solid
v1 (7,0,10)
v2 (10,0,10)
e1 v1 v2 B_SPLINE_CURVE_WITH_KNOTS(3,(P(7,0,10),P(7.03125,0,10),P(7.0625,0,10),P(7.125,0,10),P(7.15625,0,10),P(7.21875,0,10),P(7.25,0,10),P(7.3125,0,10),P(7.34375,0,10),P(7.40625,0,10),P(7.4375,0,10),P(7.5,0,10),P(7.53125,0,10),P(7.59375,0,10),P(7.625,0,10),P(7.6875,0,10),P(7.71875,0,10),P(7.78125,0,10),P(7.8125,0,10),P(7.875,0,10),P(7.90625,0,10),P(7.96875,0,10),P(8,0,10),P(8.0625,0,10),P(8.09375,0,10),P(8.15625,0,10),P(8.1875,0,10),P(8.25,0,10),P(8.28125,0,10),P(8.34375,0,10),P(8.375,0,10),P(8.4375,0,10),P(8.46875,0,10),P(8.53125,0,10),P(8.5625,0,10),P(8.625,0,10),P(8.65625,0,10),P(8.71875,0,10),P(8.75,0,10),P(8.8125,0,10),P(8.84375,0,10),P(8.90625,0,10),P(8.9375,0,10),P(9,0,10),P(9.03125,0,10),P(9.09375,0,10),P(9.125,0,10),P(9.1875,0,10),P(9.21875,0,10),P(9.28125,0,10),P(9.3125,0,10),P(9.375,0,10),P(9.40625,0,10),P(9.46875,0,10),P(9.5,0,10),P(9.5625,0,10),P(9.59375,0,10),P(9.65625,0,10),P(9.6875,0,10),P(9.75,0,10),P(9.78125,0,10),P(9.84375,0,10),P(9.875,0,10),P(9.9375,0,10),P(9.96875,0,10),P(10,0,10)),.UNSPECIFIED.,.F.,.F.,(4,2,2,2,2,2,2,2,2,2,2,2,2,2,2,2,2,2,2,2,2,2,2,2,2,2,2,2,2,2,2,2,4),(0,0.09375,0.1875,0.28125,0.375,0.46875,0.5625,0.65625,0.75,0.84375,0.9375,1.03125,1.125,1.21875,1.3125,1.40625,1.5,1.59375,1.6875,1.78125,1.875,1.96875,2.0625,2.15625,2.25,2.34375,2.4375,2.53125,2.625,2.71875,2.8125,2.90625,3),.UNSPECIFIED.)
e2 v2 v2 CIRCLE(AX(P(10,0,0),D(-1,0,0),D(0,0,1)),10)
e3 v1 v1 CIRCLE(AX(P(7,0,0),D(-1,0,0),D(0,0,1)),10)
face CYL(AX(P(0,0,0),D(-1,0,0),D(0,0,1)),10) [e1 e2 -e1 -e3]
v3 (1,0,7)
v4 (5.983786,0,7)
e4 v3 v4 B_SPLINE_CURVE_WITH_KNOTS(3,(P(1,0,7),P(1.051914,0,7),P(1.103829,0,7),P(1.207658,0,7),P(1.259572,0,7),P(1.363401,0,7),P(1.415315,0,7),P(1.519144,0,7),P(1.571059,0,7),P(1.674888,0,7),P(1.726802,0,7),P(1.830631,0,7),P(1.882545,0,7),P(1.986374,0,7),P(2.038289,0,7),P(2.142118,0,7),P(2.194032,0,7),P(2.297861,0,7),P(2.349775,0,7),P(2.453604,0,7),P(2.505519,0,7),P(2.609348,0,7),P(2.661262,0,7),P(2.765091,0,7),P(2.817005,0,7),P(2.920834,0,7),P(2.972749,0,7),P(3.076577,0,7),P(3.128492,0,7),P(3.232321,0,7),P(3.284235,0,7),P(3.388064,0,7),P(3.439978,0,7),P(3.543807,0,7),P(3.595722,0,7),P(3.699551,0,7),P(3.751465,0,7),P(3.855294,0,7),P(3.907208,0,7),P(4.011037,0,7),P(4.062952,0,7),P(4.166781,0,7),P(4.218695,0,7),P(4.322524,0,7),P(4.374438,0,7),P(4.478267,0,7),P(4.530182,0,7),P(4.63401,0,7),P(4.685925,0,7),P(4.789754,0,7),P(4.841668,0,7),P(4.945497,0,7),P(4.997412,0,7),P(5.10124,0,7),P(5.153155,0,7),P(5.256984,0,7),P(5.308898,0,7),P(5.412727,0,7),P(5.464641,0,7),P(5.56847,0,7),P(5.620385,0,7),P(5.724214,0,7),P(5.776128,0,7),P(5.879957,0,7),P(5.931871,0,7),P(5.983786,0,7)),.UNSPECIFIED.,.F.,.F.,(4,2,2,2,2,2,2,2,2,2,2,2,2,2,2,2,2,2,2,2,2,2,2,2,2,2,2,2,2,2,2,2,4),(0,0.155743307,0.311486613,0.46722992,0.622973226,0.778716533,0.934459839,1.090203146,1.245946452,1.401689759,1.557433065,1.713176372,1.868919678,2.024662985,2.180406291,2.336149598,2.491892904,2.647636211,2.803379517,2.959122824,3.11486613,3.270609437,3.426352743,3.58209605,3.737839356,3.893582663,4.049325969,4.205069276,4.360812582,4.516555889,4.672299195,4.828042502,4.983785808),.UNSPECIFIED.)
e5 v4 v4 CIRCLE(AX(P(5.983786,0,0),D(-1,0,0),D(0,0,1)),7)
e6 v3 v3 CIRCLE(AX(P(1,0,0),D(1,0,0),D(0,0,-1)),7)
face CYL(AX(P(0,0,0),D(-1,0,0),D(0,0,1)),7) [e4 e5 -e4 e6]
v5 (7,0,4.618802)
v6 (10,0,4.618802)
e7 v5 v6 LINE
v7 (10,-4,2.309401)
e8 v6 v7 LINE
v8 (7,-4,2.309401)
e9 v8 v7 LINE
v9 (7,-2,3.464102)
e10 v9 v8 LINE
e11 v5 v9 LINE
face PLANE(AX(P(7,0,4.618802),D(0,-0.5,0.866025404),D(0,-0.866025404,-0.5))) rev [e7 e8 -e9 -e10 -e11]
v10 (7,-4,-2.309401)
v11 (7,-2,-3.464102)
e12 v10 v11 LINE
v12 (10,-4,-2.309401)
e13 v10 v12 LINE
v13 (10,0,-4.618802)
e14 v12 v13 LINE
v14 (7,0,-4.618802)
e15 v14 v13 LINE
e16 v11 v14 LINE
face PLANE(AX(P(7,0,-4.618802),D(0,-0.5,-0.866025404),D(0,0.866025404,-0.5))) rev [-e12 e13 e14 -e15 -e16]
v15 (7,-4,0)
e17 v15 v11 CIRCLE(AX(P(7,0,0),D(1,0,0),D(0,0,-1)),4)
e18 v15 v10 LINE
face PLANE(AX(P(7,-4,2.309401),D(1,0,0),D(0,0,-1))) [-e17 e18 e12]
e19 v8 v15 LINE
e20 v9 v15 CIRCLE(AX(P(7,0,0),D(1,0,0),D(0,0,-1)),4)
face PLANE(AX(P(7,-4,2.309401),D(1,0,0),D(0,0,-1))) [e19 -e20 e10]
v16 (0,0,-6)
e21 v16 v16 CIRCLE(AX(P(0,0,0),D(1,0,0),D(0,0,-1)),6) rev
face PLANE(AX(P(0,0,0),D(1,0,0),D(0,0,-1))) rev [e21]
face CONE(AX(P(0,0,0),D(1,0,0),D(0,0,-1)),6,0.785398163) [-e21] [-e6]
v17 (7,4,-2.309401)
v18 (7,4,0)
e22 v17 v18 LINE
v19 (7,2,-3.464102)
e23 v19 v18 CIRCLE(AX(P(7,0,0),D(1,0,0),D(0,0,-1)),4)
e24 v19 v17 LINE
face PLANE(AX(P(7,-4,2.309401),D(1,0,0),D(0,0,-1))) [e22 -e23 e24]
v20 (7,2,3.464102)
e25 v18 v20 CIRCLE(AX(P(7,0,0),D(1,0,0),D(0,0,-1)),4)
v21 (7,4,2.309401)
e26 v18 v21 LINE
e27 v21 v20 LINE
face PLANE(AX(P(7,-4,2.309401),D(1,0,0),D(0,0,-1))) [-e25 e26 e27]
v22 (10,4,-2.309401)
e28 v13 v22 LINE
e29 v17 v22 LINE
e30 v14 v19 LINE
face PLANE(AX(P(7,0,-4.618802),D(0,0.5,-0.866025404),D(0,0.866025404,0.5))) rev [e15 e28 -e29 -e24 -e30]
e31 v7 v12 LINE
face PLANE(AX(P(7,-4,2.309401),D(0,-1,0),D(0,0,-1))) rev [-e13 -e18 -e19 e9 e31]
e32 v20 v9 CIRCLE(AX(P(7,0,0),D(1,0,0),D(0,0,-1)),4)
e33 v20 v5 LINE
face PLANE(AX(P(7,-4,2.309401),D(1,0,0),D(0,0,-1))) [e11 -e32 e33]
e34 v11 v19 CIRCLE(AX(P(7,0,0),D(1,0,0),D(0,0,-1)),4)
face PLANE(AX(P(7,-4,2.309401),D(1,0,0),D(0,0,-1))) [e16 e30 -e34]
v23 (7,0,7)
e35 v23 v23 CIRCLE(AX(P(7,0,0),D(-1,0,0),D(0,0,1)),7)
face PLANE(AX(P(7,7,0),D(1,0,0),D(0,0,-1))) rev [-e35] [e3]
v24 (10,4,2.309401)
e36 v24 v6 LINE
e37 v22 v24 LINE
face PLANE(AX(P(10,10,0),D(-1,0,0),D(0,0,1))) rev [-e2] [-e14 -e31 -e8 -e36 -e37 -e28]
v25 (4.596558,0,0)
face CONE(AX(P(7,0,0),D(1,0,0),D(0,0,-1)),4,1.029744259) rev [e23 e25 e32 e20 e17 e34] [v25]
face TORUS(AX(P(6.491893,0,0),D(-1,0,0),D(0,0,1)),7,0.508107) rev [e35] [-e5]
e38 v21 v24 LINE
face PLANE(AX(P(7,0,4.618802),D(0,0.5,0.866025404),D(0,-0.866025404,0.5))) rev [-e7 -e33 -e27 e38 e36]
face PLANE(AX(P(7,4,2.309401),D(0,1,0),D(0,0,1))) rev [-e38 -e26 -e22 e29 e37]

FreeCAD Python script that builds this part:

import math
import FreeCAD as App
import Part
import Sketcher

V = App.Vector
Q = App.Units.Quantity


def edges_at(feature, points):
    """Names of the edges that pass closest to the given points."""
    edges = feature.Shape.Edges
    near = lambda p: min(range(len(edges)), key=lambda i: edges[i].distToShape(Part.Vertex(*p))[0])
    return sorted({f"Edge{near(p) + 1}" for p in points})

doc = App.newDocument("Part")
body = doc.addObject("PartDesign::Body", "Body")

sketch1 = body.newObject("Sketcher::SketchObject", "Sketch")
sketch1.AttachmentSupport = (doc.getObject("XY_Plane"), [""])
sketch1.MapMode = "FlatFace"
sketch1.addGeometry(Part.LineSegment(V(0, 7, 0), V(0, 0, 0)), False)
sketch1.addGeometry(Part.LineSegment(V(0, 0, 0), V(10, 0, 0)), False)
sketch1.addGeometry(Part.LineSegment(V(10, 0, 0), V(10, 10, 0)), False)
sketch1.addGeometry(Part.LineSegment(V(10, 10, 0), V(7, 10, 0)), False)
sketch1.addGeometry(Part.LineSegment(V(7, 10, 0), V(7, 7, 0)), False)
sketch1.addGeometry(Part.ArcOfCircle(Part.Circle(V(6.491893, 7, 0), V(0, 0, 1), 0.508107), math.radians(180), math.radians(360)), False)
sketch1.addGeometry(Part.LineSegment(V(5.983786, 7, 0), V(0, 7, 0)), False)
sketch1.addConstraint(Sketcher.Constraint("Coincident", 0, 2, 1, 1))
sketch1.addConstraint(Sketcher.Constraint("Coincident", 1, 2, 2, 1))
sketch1.addConstraint(Sketcher.Constraint("Coincident", 2, 2, 3, 1))
sketch1.addConstraint(Sketcher.Constraint("Coincident", 3, 2, 4, 1))
sketch1.addConstraint(Sketcher.Constraint("Tangent", 4, 2, 5, 2))
sketch1.addConstraint(Sketcher.Constraint("Coincident", 5, 1, 6, 1))
sketch1.addConstraint(Sketcher.Constraint("Coincident", 6, 2, 0, 1))
sketch1.addConstraint(Sketcher.Constraint("Vertical", 0))
sketch1.addConstraint(Sketcher.Constraint("Horizontal", 1))
sketch1.addConstraint(Sketcher.Constraint("Vertical", 2))
sketch1.addConstraint(Sketcher.Constraint("Horizontal", 3))
sketch1.addConstraint(Sketcher.Constraint("Vertical", 4))
sketch1.addConstraint(Sketcher.Constraint("Horizontal", 6))
sketch1.addConstraint(Sketcher.Constraint("Coincident", 0, 2, -1, 1))
sketch1.addConstraint(Sketcher.Constraint("Horizontal", 4, 2, 5, 1))
sketch1.addConstraint(Sketcher.Constraint("Equal", 1, 2))
sketch1.addConstraint(Sketcher.Constraint("Equal", 3, 4))
sketch1.addConstraint(Sketcher.Constraint("DistanceX", 1, 1, 1, 2, Q("10 mm")))
sketch1.addConstraint(Sketcher.Constraint("DistanceX", 3, 2, 3, 1, Q("3 mm")))
sketch1.addConstraint(Sketcher.Constraint("Radius", 5, Q("0.508107 mm")))
revolution = body.newObject("PartDesign::Revolution", "Revolution")
revolution.Profile = sketch1
revolution.ReferenceAxis = (sketch1, ["H_Axis"])
revolution.Angle = 360

sketch2 = body.newObject("Sketcher::SketchObject", "Sketch001")
sketch2.AttachmentSupport = (doc.getObject("XZ_Plane"), [""])
sketch2.MapMode = "FlatFace"
sketch2.addGeometry(Part.LineSegment(V(4.596558, 0, 0), V(10, 0, 0)), False)
sketch2.addGeometry(Part.LineSegment(V(10, 0, 0), V(10, -4, 0)), False)
sketch2.addGeometry(Part.LineSegment(V(10, -4, 0), V(7, -4, 0)), False)
sketch2.addGeometry(Part.LineSegment(V(7, -4, 0), V(4.596558, 0, 0)), False)
sketch2.addConstraint(Sketcher.Constraint("Coincident", 0, 2, 1, 1))
sketch2.addConstraint(Sketcher.Constraint("Coincident", 1, 2, 2, 1))
sketch2.addConstraint(Sketcher.Constraint("Coincident", 2, 2, 3, 1))
sketch2.addConstraint(Sketcher.Constraint("Coincident", 3, 2, 0, 1))
sketch2.addConstraint(Sketcher.Constraint("Horizontal", 0))
sketch2.addConstraint(Sketcher.Constraint("Vertical", 1))
sketch2.addConstraint(Sketcher.Constraint("Horizontal", 2))
sketch2.addConstraint(Sketcher.Constraint("PointOnObject", 0, 2, -1))
sketch2.addConstraint(Sketcher.Constraint("DistanceX", 2, 2, 2, 1, Q("3 mm")))
sketch2.addConstraint(Sketcher.Constraint("DistanceY", 1, 2, 1, 1, Q("4 mm")))
sketch2.addConstraint(Sketcher.Constraint("Angle", 3, Q("121 deg")))
sketch2.addConstraint(Sketcher.Constraint("DistanceX", -1, 1, 0, 2, Q("10 mm")))
groove = body.newObject("PartDesign::Groove", "Groove")
groove.Profile = sketch2
groove.ReferenceAxis = (sketch2, ["H_Axis"])
groove.Angle = 360

sketch3 = body.newObject("Sketcher::SketchObject", "Sketch002")
sketch3.AttachmentSupport = (doc.getObject("YZ_Plane"), [""])
sketch3.MapMode = "FlatFace"
sketch3.AttachmentOffset = App.Placement(V(0, 0, 10), App.Rotation())
sketch3.addGeometry(Part.LineSegment(V(4, 2.309401, 0), V(0, 4.618802, 0)), False)
sketch3.addGeometry(Part.LineSegment(V(0, 4.618802, 0), V(-4, 2.309401, 0)), False)
sketch3.addGeometry(Part.LineSegment(V(-4, 2.309401, 0), V(-4, -2.309401, 0)), False)
sketch3.addGeometry(Part.LineSegment(V(-4, -2.309401, 0), V(0, -4.618802, 0)), False)
sketch3.addGeometry(Part.LineSegment(V(0, -4.618802, 0), V(4, -2.309401, 0)), False)
sketch3.addGeometry(Part.LineSegment(V(4, -2.309401, 0), V(4, 2.309401, 0)), False)
sketch3.addConstraint(Sketcher.Constraint("Coincident", 0, 2, 1, 1))
sketch3.addConstraint(Sketcher.Constraint("Coincident", 1, 2, 2, 1))
sketch3.addConstraint(Sketcher.Constraint("Coincident", 2, 2, 3, 1))
sketch3.addConstraint(Sketcher.Constraint("Coincident", 3, 2, 4, 1))
sketch3.addConstraint(Sketcher.Constraint("Coincident", 4, 2, 5, 1))
sketch3.addConstraint(Sketcher.Constraint("Coincident", 5, 2, 0, 1))
sketch3.addConstraint(Sketcher.Constraint("Vertical", 2))
sketch3.addConstraint(Sketcher.Constraint("Vertical", 5))
sketch3.addConstraint(Sketcher.Constraint("Symmetric", 0, 2, 3, 2, -1, 1))
sketch3.addConstraint(Sketcher.Constraint("Symmetric", 1, 2, 4, 2, -1, 1))
sketch3.addConstraint(Sketcher.Constraint("PointOnObject", 0, 2, -2))
sketch3.addConstraint(Sketcher.Constraint("Parallel", 0, 3))
sketch3.addConstraint(Sketcher.Constraint("Horizontal", 2, 2, 4, 2))
sketch3.addConstraint(Sketcher.Constraint("Angle", 0, Q("150 deg")))
sketch3.addConstraint(Sketcher.Constraint("DistanceX", 1, 2, -1, 1, Q("4 mm")))
sketch3.addConstraint(Sketcher.Constraint("DistanceY", -1, 1, 1, 2, Q("2.309401 mm")))
pocket1 = body.newObject("PartDesign::Pocket", "Pocket")
pocket1.Profile = sketch3
pocket1.Length = 3
doc.recompute()

chamfer = body.newObject("PartDesign::Chamfer", "Chamfer")
chamfer.Base = (pocket1, edges_at(pocket1, [(0, 0, -7)]))
chamfer.Size = 1

doc.recompute()
